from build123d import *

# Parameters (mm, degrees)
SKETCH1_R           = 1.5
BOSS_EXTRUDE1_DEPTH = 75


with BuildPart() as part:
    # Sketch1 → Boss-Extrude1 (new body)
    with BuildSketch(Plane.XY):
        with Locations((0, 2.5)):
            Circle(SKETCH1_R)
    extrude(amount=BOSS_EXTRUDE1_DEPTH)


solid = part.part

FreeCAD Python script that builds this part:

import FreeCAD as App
import Part
import Sketcher
Q = App.Units.Quantity

doc = App.newDocument("Part")
body = doc.addObject("PartDesign::Body", "Body")

sketch1 = body.newObject("Sketcher::SketchObject", "Sketch")
sketch1.AttachmentSupport = (doc.getObject("XY_Plane"), [""])
sketch1.MapMode = "FlatFace"
sketch1.addGeometry(Part.Circle(App.Vector(0, 2.5, 0), App.Vector(0, 0, 1), 1.5), False)
sketch1.addConstraint(Sketcher.Constraint("PointOnObject", 0, 3, -2))
sketch1.addConstraint(Sketcher.Constraint("Diameter", 0, Q("3 mm")))
sketch1.addConstraint(Sketcher.Constraint("DistanceY", -1, 1, 0, 3, Q("2.5 mm")))
pad1 = body.newObject("PartDesign::Pad", "Pad")
pad1.Profile = sketch1
pad1.Length = 75

doc.recompute()
